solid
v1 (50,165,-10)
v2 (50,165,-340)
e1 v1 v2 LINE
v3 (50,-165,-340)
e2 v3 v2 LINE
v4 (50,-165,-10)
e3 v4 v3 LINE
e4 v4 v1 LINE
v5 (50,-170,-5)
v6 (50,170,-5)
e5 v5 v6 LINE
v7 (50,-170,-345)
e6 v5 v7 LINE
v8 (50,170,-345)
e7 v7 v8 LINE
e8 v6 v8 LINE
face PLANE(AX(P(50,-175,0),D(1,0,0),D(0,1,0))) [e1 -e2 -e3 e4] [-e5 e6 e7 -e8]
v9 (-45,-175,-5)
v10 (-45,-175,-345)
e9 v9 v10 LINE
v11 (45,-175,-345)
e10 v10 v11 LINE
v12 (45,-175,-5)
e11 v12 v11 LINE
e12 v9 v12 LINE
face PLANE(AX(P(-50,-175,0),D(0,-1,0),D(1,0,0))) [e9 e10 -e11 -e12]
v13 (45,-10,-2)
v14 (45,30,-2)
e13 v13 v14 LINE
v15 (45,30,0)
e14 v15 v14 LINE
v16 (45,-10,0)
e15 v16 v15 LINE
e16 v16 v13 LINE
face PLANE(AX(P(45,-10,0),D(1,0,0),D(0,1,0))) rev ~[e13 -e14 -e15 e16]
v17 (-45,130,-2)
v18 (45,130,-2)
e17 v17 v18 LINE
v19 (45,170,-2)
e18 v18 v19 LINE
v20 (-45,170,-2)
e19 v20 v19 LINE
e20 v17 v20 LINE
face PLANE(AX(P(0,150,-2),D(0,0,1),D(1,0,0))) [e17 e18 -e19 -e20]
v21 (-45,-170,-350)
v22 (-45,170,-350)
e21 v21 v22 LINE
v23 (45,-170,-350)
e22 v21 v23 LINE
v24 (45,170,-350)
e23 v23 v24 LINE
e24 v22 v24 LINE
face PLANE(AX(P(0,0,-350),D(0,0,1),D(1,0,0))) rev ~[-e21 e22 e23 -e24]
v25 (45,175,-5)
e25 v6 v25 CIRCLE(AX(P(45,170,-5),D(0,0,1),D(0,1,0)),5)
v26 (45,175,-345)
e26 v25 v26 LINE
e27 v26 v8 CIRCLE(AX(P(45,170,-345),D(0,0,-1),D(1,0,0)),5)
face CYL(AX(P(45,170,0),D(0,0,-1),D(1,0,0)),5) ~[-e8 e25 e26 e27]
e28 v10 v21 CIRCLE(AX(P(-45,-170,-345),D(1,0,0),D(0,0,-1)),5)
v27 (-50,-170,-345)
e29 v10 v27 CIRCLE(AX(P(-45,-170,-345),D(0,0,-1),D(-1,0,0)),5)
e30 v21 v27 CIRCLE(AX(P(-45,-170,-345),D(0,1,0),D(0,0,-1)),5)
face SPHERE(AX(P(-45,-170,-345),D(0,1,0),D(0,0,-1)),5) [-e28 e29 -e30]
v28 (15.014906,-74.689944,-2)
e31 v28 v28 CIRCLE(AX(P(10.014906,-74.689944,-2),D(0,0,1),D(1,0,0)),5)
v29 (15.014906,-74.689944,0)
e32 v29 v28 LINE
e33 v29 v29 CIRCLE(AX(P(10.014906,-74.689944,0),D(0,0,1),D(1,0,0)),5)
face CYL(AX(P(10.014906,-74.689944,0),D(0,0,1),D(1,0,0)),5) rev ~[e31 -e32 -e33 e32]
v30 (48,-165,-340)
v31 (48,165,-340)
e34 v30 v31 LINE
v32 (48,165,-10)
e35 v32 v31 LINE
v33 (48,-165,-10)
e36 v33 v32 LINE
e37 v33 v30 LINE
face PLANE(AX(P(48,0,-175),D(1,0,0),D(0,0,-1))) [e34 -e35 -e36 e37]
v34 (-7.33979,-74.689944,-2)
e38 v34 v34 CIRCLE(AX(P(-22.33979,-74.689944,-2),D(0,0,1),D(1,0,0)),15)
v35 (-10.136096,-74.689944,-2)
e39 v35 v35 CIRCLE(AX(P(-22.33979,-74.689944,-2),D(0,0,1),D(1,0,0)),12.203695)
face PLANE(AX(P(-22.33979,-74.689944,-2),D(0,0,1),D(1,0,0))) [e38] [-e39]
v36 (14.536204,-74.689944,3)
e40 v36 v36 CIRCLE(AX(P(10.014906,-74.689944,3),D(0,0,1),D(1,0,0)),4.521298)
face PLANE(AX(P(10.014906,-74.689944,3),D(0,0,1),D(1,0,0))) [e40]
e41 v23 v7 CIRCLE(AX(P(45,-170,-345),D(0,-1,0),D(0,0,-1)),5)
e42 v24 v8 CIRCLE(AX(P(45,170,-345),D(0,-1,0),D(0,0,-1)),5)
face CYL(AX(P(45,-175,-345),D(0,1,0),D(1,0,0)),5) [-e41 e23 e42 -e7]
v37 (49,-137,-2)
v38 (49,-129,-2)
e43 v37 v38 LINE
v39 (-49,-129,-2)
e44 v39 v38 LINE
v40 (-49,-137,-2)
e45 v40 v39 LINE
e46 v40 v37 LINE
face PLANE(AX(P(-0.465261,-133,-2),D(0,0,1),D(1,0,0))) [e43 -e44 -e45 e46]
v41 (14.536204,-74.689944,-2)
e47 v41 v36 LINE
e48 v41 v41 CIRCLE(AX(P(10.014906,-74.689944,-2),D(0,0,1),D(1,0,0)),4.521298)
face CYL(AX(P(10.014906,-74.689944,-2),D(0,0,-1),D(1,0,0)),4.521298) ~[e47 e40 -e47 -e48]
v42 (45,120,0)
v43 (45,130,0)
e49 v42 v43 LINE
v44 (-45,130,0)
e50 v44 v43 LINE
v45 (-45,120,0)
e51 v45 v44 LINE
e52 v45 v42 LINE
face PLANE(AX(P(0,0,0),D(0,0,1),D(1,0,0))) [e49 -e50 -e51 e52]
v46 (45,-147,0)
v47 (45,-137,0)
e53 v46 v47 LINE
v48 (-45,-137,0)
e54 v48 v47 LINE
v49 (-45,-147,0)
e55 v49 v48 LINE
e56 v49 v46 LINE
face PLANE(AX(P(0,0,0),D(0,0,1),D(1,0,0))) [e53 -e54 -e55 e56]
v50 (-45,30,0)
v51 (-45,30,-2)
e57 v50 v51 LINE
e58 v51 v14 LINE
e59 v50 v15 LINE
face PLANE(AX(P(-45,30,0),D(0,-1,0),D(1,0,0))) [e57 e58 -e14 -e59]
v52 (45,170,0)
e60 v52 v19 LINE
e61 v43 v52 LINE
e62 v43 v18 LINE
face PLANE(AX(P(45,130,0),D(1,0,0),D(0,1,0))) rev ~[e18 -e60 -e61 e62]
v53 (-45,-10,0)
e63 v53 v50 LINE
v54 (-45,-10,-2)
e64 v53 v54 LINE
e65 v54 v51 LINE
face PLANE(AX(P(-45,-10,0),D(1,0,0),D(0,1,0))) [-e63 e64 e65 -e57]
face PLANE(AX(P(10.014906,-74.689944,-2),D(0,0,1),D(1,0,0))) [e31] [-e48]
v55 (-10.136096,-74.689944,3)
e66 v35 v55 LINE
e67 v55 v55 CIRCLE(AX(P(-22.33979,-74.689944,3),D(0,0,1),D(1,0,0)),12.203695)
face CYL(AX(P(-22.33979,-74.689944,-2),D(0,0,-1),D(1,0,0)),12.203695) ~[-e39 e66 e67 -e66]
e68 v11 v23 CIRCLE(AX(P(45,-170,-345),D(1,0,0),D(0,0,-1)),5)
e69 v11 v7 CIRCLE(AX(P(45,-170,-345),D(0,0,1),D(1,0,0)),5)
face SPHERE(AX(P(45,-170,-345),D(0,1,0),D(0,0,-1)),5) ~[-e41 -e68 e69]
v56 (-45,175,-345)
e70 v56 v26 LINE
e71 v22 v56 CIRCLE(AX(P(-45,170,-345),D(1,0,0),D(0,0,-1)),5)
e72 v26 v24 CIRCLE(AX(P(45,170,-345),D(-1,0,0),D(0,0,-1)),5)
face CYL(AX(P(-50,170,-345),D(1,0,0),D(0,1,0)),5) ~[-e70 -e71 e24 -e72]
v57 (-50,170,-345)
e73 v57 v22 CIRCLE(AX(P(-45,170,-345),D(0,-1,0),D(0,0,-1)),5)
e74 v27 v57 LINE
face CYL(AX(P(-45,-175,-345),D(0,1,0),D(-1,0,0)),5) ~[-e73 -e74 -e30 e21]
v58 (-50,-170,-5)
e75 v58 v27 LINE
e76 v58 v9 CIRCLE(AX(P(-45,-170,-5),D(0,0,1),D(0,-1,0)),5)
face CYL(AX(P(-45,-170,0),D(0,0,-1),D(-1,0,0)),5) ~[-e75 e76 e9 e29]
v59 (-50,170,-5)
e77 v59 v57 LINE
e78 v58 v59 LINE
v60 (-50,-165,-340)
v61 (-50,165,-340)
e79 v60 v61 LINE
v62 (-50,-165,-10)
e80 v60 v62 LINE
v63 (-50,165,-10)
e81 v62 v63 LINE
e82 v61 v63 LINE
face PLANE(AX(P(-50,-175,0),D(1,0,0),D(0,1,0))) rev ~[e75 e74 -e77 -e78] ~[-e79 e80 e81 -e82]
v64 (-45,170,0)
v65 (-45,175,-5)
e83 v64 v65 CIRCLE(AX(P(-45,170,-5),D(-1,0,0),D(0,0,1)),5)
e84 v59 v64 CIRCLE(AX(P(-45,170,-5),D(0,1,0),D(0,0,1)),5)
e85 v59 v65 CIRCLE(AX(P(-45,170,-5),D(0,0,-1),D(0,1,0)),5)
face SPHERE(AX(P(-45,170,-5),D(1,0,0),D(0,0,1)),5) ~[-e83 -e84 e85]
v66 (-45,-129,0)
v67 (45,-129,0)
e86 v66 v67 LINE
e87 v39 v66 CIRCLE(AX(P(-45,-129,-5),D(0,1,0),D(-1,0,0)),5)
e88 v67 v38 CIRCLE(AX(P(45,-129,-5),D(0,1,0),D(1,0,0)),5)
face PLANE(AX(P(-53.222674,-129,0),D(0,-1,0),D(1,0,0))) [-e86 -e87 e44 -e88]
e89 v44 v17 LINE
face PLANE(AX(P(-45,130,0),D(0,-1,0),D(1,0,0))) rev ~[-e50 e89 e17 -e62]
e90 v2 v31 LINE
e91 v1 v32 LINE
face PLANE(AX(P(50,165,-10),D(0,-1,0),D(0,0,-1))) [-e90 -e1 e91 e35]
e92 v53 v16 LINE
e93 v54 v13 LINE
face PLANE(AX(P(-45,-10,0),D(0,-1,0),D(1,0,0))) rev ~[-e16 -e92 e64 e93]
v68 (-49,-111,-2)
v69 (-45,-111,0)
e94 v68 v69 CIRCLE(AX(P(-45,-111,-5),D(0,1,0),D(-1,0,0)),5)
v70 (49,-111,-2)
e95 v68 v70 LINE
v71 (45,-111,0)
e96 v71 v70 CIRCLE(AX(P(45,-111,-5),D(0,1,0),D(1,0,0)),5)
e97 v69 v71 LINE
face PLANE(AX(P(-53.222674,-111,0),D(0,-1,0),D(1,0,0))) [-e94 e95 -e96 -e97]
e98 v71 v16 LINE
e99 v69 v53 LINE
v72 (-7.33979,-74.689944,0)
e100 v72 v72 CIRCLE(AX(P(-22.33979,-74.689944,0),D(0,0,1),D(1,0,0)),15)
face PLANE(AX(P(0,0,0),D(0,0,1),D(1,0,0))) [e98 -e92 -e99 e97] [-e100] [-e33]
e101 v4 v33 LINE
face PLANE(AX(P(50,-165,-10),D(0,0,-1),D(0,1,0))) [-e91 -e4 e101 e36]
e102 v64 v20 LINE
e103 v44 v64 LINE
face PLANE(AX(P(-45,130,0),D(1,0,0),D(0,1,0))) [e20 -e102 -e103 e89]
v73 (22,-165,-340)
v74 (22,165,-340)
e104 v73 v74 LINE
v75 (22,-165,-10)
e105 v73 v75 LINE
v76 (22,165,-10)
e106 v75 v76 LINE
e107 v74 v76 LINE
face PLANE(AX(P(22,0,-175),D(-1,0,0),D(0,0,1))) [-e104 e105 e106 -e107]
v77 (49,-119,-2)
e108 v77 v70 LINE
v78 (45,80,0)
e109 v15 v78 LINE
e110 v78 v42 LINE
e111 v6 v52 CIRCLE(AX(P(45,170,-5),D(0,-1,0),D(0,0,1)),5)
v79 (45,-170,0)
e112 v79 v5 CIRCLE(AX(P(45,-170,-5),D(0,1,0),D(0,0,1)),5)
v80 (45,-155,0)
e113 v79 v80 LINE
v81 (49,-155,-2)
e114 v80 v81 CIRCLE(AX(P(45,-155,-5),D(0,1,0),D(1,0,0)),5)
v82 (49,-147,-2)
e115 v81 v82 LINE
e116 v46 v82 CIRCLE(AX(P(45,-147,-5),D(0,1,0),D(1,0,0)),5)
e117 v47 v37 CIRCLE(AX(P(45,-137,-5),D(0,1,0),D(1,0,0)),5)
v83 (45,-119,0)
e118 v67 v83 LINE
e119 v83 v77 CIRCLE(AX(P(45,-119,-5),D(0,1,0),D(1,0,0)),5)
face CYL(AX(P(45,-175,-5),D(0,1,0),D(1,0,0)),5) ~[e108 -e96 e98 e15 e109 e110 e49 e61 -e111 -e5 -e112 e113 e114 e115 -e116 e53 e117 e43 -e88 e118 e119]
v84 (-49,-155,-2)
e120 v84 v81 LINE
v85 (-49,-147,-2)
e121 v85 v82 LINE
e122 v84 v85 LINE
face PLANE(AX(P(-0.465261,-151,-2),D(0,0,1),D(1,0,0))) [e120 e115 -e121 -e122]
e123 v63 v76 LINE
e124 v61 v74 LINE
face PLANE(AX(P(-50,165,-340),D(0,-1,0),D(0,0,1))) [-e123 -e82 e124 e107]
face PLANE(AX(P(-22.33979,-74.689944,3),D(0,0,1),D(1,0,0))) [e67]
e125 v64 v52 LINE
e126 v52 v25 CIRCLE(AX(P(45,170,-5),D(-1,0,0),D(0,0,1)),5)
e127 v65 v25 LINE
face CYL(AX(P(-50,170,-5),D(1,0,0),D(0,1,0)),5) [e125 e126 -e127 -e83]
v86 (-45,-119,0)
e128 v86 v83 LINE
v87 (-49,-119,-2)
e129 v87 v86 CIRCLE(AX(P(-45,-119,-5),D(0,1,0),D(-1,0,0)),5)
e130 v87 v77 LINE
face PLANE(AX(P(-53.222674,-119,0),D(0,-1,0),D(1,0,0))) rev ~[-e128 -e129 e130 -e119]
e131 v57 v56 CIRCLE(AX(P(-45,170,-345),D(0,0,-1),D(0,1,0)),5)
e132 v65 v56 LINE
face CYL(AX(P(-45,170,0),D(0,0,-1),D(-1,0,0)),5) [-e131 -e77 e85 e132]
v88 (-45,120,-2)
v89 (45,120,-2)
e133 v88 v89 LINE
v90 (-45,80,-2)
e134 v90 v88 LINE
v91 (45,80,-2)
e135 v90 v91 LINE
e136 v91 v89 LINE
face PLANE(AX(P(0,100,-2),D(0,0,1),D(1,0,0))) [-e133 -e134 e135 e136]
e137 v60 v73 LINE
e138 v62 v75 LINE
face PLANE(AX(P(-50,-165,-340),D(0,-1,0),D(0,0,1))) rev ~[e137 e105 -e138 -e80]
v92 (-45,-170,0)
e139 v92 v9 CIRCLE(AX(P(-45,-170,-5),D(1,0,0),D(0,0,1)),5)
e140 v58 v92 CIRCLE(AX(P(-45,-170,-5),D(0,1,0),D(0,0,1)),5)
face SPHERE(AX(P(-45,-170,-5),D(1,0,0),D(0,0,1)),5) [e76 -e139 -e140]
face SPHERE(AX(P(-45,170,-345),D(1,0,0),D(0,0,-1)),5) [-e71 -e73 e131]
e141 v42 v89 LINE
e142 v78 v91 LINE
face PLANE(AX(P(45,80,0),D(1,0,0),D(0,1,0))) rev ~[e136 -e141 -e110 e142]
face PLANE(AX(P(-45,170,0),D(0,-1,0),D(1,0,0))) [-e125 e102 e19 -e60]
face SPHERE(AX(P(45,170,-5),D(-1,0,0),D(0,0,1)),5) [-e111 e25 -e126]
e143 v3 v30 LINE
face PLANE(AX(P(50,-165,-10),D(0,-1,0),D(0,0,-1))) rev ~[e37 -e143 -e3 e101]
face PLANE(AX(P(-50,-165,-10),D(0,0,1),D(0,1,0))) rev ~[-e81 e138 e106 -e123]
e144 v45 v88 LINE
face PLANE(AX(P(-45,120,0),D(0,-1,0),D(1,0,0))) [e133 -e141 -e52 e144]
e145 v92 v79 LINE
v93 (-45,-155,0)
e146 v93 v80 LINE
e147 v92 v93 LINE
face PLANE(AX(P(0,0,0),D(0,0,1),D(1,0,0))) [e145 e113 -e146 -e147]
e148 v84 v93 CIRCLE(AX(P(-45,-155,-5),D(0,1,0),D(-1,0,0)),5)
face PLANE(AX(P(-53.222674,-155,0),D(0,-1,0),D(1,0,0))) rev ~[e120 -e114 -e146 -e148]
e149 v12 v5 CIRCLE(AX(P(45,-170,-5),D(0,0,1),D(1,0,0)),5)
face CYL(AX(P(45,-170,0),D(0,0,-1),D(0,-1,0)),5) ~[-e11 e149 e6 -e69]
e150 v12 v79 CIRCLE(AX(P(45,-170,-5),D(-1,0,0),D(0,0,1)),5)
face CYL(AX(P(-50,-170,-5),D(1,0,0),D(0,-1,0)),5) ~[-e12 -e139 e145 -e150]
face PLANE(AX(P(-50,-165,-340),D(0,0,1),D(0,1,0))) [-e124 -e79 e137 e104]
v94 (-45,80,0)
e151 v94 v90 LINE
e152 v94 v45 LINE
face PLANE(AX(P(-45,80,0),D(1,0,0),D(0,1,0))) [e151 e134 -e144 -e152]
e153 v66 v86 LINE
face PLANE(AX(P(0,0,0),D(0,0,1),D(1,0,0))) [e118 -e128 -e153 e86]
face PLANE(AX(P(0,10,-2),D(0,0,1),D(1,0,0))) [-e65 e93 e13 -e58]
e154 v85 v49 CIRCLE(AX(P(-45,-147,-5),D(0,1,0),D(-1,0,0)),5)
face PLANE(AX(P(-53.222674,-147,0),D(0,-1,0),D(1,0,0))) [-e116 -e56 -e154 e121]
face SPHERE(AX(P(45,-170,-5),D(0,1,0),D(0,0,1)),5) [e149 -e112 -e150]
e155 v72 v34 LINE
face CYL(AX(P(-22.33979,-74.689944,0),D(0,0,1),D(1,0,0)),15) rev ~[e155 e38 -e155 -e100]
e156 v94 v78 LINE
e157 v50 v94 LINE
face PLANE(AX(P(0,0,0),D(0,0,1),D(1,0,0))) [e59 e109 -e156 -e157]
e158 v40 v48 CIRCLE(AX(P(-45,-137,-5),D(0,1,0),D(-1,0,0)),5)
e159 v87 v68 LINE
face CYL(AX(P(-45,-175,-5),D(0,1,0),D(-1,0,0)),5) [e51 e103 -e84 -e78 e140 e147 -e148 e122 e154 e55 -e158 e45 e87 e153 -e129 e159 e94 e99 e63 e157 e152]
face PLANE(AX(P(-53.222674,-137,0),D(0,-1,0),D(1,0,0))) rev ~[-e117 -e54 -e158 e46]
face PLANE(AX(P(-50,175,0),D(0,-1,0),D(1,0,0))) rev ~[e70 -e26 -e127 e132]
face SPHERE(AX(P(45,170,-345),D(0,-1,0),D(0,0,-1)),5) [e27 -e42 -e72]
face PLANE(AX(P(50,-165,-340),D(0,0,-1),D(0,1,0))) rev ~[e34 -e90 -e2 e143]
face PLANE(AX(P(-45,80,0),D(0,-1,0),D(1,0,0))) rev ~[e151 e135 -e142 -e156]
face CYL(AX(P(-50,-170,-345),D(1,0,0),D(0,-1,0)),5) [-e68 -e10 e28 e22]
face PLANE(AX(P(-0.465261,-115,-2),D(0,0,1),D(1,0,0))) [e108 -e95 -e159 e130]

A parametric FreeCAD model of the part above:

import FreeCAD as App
import Part
import Sketcher

V = App.Vector
Q = App.Units.Quantity


def add_polygon(sketch, points):
    """Adds a closed chain of lines whose ends are joined by coincident constraints."""
    first, n = sketch.GeometryCount, len(points)
    for a, b in zip(points, points[1:] + points[:1]):
        sketch.addGeometry(Part.LineSegment(App.Vector(*a, 0), App.Vector(*b, 0)), False)
    for i in range(n):
        sketch.addConstraint(Sketcher.Constraint("Coincident", first + i, 2, first + (i + 1) % n, 1))

doc = App.newDocument("Part")
body = doc.addObject("PartDesign::Body", "Body")

sketch1 = body.newObject("Sketcher::SketchObject", "Sketch")
sketch1.AttachmentSupport = (doc.getObject("XY_Plane"), [""])
sketch1.MapMode = "FlatFace"
add_polygon(sketch1, [(-50, 175), (-50, -175), (50, -175), (50, 175)])
sketch1.addConstraint(Sketcher.Constraint("Vertical", 0))
sketch1.addConstraint(Sketcher.Constraint("Horizontal", 1))
sketch1.addConstraint(Sketcher.Constraint("Vertical", 2))
sketch1.addConstraint(Sketcher.Constraint("Horizontal", 3))
sketch1.addConstraint(Sketcher.Constraint("Symmetric", 0, 2, 2, 2, -1, 1))
sketch1.addConstraint(Sketcher.Constraint("DistanceX", 1, 1, 1, 2, Q("100 mm")))
sketch1.addConstraint(Sketcher.Constraint("DistanceY", 0, 2, 0, 1, Q("350 mm")))
pad1 = body.newObject("PartDesign::Pad", "Pad")
pad1.Profile = sketch1
pad1.Length = 350
pad1.Reversed = True
doc.recompute()

fillet = body.newObject("PartDesign::Fillet", "Fillet")
fillet.Base = (pad1, ["Edge1"])
fillet.UseAllEdges = True
fillet.Radius = 5

sketch2 = body.newObject("Sketcher::SketchObject", "Sketch001")
sketch2.AttachmentSupport = (doc.getObject("XY_Plane"), [""])
sketch2.MapMode = "FlatFace"
sketch2.addGeometry(Part.Circle(V(-22, -75, 0), V(0, 0, 1), 15), False)
sketch2.addGeometry(Part.Circle(V(10, -75, 0), V(0, 0, 1), 5), False)
add_polygon(sketch2, [(-45, 170), (-45, 130), (45, 130), (45, 170)])
add_polygon(sketch2, [(-45, 120), (-45, 80), (45, 80), (45, 120)])
add_polygon(sketch2, [(-45, 30), (-45, -10), (45, -10), (45, 30)])
add_polygon(sketch2, [(-53, -147), (-53, -155), (52, -155), (52, -147)])
add_polygon(sketch2, [(-53, -129), (-53, -137), (52, -137), (52, -129)])
add_polygon(sketch2, [(-53, -111), (-53, -119), (52, -119), (52, -111)])
sketch2.addConstraint(Sketcher.Constraint("Vertical", 2))
sketch2.addConstraint(Sketcher.Constraint("Horizontal", 3))
sketch2.addConstraint(Sketcher.Constraint("Vertical", 4))
sketch2.addConstraint(Sketcher.Constraint("Horizontal", 5))
sketch2.addConstraint(Sketcher.Constraint("Vertical", 6))
sketch2.addConstraint(Sketcher.Constraint("Horizontal", 7))
sketch2.addConstraint(Sketcher.Constraint("Vertical", 8))
sketch2.addConstraint(Sketcher.Constraint("Horizontal", 9))
sketch2.addConstraint(Sketcher.Constraint("Vertical", 10))
sketch2.addConstraint(Sketcher.Constraint("Horizontal", 11))
sketch2.addConstraint(Sketcher.Constraint("Vertical", 12))
sketch2.addConstraint(Sketcher.Constraint("Horizontal", 13))
sketch2.addConstraint(Sketcher.Constraint("Vertical", 14))
sketch2.addConstraint(Sketcher.Constraint("Horizontal", 15))
sketch2.addConstraint(Sketcher.Constraint("Vertical", 16))
sketch2.addConstraint(Sketcher.Constraint("Horizontal", 17))
sketch2.addConstraint(Sketcher.Constraint("Vertical", 18))
sketch2.addConstraint(Sketcher.Constraint("Horizontal", 19))
sketch2.addConstraint(Sketcher.Constraint("Vertical", 20))
sketch2.addConstraint(Sketcher.Constraint("Horizontal", 21))
sketch2.addConstraint(Sketcher.Constraint("Vertical", 22))
sketch2.addConstraint(Sketcher.Constraint("Horizontal", 23))
sketch2.addConstraint(Sketcher.Constraint("Vertical", 24))
sketch2.addConstraint(Sketcher.Constraint("Horizontal", 25))
sketch2.addConstraint(Sketcher.Constraint("Horizontal", 0, 3, 1, 3))
sketch2.addConstraint(Sketcher.Constraint("Vertical", 5, 2, 6, 2))
sketch2.addConstraint(Sketcher.Constraint("Vertical", 4, 2, 7, 2))
sketch2.addConstraint(Sketcher.Constraint("Vertical", 9, 2, 10, 2))
sketch2.addConstraint(Sketcher.Constraint("Vertical", 8, 2, 11, 2))
sketch2.addConstraint(Sketcher.Constraint("Vertical", 17, 2, 18, 2))
sketch2.addConstraint(Sketcher.Constraint("Vertical", 16, 2, 19, 2))
sketch2.addConstraint(Sketcher.Constraint("Vertical", 21, 2, 22, 2))
sketch2.addConstraint(Sketcher.Constraint("Vertical", 20, 2, 23, 2))
sketch2.addConstraint(Sketcher.Constraint("Equal", 4, 6))
sketch2.addConstraint(Sketcher.Constraint("Equal", 8, 10))
sketch2.addConstraint(Sketcher.Constraint("Equal", 16, 18))
sketch2.addConstraint(Sketcher.Constraint("Equal", 20, 22))
sketch2.addConstraint(Sketcher.Constraint("Diameter", 0, Q("30 mm")))
sketch2.addConstraint(Sketcher.Constraint("Diameter", 1, Q("10 mm")))
sketch2.addConstraint(Sketcher.Constraint("DistanceX", 3, 1, 3, 2, Q("90 mm")))
sketch2.addConstraint(Sketcher.Constraint("DistanceY", 2, 2, 2, 1, Q("40 mm")))
sketch2.addConstraint(Sketcher.Constraint("DistanceY", 14, 2, 14, 1, Q("8 mm")))
sketch2.addConstraint(Sketcher.Constraint("DistanceX", 2, 2, -1, 1, Q("45 mm")))
sketch2.addConstraint(Sketcher.Constraint("DistanceY", -1, 1, 2, 2, Q("130 mm")))
sketch2.addConstraint(Sketcher.Constraint("DistanceY", -1, 1, 6, 2, Q("80 mm")))
sketch2.addConstraint(Sketcher.Constraint("DistanceY", 10, 2, -1, 1, Q("10 mm")))
sketch2.addConstraint(Sketcher.Constraint("DistanceY", 14, 2, -1, 1, Q("155 mm")))
sketch2.addConstraint(Sketcher.Constraint("DistanceY", 18, 2, -1, 1, Q("137 mm")))
sketch2.addConstraint(Sketcher.Constraint("DistanceY", 22, 2, -1, 1, Q("119 mm")))
sketch2.addConstraint(Sketcher.Constraint("DistanceX", 15, 1, 15, 2, Q("105.514826 mm")))
sketch2.addConstraint(Sketcher.Constraint("DistanceX", 0, 3, -1, 1, Q("22.33979 mm")))
sketch2.addConstraint(Sketcher.Constraint("DistanceX", 14, 2, 1, 3, Q("63.23758 mm")))
sketch2.addConstraint(Sketcher.Constraint("DistanceY", 0, 3, -1, 1, Q("74.689944 mm")))
sketch2.addConstraint(Sketcher.Constraint("DistanceX", -1, 1, 1, 3, Q("10.014906 mm")))
pocket1 = body.newObject("PartDesign::Pocket", "Pocket")
pocket1.Profile = sketch2
pocket1.Length = 2

sketch3 = body.newObject("Sketcher::SketchObject", "Sketch002")
sketch3.AttachmentSupport = (doc.getObject("XY_Plane"), [""])
sketch3.MapMode = "FlatFace"
sketch3.AttachmentOffset = App.Placement(V(0, 0, -2), App.Rotation())
sketch3.addGeometry(Part.Circle(V(-22.3, -74.7, 0), V(0, 0, 1), 12.2), False)
sketch3.addGeometry(Part.Circle(V(10, -74.7, 0), V(0, 0, 1), 4.5), False)
sketch3.addConstraint(Sketcher.Constraint("Horizontal", 0, 3, 1, 3))
sketch3.addConstraint(Sketcher.Constraint("Diameter", 0, Q("24.407389 mm")))
sketch3.addConstraint(Sketcher.Constraint("Diameter", 1, Q("9.042596 mm")))
sketch3.addConstraint(Sketcher.Constraint("DistanceX", 0, 3, -1, 1, Q("22.33979 mm")))
sketch3.addConstraint(Sketcher.Constraint("DistanceY", 0, 3, -1, 1, Q("74.689944 mm")))
sketch3.addConstraint(Sketcher.Constraint("DistanceX", -1, 1, 1, 3, Q("10.014906 mm")))
pad2 = body.newObject("PartDesign::Pad", "Pad001")
pad2.Profile = sketch3
pad2.Length = 5

sketch4 = body.newObject("Sketcher::SketchObject", "Sketch003")
sketch4.AttachmentSupport = (doc.getObject("YZ_Plane"), [""])
sketch4.MapMode = "FlatFace"
sketch4.AttachmentOffset = App.Placement(V(0, 0, -50), App.Rotation())
add_polygon(sketch4, [(165, -340), (-165, -340), (-165, -10), (165, -10)])
sketch4.addConstraint(Sketcher.Constraint("Horizontal", 0))
sketch4.addConstraint(Sketcher.Constraint("Vertical", 1))
sketch4.addConstraint(Sketcher.Constraint("Horizontal", 2))
sketch4.addConstraint(Sketcher.Constraint("Vertical", 3))
sketch4.addConstraint(Sketcher.Constraint("Equal", 2, 1))
sketch4.addConstraint(Sketcher.Constraint("DistanceX", 0, 2, 0, 1, Q("330 mm")))
sketch4.addConstraint(Sketcher.Constraint("DistanceX", 0, 2, -1, 1, Q("165 mm")))
sketch4.addConstraint(Sketcher.Constraint("DistanceY", 0, 2, -1, 1, Q("340 mm")))
pocket2 = body.newObject("PartDesign::Pocket", "Pocket001")
pocket2.Profile = sketch4
pocket2.Length = 72
pocket2.Reversed = True

sketch5 = body.newObject("Sketcher::SketchObject", "Sketch004")
sketch5.AttachmentSupport = (doc.getObject("YZ_Plane"), [""])
sketch5.MapMode = "FlatFace"
sketch5.AttachmentOffset = App.Placement(V(0, 0, 50), App.Rotation())
add_polygon(sketch5, [(165, -10), (-165, -10), (-165, -340), (165, -340)])
sketch5.addConstraint(Sketcher.Constraint("Horizontal", 0))
sketch5.addConstraint(Sketcher.Constraint("Vertical", 1))
sketch5.addConstraint(Sketcher.Constraint("Horizontal", 2))
sketch5.addConstraint(Sketcher.Constraint("Vertical", 3))
sketch5.addConstraint(Sketcher.Constraint("Equal", 2, 1))
sketch5.addConstraint(Sketcher.Constraint("DistanceX", 0, 2, 0, 1, Q("330 mm")))
sketch5.addConstraint(Sketcher.Constraint("DistanceX", 0, 2, -1, 1, Q("165 mm")))
sketch5.addConstraint(Sketcher.Constraint("DistanceY", 0, 2, -1, 1, Q("10 mm")))
pocket3 = body.newObject("PartDesign::Pocket", "Pocket002")
pocket3.Profile = sketch5
pocket3.Length = 2

doc.recompute()
